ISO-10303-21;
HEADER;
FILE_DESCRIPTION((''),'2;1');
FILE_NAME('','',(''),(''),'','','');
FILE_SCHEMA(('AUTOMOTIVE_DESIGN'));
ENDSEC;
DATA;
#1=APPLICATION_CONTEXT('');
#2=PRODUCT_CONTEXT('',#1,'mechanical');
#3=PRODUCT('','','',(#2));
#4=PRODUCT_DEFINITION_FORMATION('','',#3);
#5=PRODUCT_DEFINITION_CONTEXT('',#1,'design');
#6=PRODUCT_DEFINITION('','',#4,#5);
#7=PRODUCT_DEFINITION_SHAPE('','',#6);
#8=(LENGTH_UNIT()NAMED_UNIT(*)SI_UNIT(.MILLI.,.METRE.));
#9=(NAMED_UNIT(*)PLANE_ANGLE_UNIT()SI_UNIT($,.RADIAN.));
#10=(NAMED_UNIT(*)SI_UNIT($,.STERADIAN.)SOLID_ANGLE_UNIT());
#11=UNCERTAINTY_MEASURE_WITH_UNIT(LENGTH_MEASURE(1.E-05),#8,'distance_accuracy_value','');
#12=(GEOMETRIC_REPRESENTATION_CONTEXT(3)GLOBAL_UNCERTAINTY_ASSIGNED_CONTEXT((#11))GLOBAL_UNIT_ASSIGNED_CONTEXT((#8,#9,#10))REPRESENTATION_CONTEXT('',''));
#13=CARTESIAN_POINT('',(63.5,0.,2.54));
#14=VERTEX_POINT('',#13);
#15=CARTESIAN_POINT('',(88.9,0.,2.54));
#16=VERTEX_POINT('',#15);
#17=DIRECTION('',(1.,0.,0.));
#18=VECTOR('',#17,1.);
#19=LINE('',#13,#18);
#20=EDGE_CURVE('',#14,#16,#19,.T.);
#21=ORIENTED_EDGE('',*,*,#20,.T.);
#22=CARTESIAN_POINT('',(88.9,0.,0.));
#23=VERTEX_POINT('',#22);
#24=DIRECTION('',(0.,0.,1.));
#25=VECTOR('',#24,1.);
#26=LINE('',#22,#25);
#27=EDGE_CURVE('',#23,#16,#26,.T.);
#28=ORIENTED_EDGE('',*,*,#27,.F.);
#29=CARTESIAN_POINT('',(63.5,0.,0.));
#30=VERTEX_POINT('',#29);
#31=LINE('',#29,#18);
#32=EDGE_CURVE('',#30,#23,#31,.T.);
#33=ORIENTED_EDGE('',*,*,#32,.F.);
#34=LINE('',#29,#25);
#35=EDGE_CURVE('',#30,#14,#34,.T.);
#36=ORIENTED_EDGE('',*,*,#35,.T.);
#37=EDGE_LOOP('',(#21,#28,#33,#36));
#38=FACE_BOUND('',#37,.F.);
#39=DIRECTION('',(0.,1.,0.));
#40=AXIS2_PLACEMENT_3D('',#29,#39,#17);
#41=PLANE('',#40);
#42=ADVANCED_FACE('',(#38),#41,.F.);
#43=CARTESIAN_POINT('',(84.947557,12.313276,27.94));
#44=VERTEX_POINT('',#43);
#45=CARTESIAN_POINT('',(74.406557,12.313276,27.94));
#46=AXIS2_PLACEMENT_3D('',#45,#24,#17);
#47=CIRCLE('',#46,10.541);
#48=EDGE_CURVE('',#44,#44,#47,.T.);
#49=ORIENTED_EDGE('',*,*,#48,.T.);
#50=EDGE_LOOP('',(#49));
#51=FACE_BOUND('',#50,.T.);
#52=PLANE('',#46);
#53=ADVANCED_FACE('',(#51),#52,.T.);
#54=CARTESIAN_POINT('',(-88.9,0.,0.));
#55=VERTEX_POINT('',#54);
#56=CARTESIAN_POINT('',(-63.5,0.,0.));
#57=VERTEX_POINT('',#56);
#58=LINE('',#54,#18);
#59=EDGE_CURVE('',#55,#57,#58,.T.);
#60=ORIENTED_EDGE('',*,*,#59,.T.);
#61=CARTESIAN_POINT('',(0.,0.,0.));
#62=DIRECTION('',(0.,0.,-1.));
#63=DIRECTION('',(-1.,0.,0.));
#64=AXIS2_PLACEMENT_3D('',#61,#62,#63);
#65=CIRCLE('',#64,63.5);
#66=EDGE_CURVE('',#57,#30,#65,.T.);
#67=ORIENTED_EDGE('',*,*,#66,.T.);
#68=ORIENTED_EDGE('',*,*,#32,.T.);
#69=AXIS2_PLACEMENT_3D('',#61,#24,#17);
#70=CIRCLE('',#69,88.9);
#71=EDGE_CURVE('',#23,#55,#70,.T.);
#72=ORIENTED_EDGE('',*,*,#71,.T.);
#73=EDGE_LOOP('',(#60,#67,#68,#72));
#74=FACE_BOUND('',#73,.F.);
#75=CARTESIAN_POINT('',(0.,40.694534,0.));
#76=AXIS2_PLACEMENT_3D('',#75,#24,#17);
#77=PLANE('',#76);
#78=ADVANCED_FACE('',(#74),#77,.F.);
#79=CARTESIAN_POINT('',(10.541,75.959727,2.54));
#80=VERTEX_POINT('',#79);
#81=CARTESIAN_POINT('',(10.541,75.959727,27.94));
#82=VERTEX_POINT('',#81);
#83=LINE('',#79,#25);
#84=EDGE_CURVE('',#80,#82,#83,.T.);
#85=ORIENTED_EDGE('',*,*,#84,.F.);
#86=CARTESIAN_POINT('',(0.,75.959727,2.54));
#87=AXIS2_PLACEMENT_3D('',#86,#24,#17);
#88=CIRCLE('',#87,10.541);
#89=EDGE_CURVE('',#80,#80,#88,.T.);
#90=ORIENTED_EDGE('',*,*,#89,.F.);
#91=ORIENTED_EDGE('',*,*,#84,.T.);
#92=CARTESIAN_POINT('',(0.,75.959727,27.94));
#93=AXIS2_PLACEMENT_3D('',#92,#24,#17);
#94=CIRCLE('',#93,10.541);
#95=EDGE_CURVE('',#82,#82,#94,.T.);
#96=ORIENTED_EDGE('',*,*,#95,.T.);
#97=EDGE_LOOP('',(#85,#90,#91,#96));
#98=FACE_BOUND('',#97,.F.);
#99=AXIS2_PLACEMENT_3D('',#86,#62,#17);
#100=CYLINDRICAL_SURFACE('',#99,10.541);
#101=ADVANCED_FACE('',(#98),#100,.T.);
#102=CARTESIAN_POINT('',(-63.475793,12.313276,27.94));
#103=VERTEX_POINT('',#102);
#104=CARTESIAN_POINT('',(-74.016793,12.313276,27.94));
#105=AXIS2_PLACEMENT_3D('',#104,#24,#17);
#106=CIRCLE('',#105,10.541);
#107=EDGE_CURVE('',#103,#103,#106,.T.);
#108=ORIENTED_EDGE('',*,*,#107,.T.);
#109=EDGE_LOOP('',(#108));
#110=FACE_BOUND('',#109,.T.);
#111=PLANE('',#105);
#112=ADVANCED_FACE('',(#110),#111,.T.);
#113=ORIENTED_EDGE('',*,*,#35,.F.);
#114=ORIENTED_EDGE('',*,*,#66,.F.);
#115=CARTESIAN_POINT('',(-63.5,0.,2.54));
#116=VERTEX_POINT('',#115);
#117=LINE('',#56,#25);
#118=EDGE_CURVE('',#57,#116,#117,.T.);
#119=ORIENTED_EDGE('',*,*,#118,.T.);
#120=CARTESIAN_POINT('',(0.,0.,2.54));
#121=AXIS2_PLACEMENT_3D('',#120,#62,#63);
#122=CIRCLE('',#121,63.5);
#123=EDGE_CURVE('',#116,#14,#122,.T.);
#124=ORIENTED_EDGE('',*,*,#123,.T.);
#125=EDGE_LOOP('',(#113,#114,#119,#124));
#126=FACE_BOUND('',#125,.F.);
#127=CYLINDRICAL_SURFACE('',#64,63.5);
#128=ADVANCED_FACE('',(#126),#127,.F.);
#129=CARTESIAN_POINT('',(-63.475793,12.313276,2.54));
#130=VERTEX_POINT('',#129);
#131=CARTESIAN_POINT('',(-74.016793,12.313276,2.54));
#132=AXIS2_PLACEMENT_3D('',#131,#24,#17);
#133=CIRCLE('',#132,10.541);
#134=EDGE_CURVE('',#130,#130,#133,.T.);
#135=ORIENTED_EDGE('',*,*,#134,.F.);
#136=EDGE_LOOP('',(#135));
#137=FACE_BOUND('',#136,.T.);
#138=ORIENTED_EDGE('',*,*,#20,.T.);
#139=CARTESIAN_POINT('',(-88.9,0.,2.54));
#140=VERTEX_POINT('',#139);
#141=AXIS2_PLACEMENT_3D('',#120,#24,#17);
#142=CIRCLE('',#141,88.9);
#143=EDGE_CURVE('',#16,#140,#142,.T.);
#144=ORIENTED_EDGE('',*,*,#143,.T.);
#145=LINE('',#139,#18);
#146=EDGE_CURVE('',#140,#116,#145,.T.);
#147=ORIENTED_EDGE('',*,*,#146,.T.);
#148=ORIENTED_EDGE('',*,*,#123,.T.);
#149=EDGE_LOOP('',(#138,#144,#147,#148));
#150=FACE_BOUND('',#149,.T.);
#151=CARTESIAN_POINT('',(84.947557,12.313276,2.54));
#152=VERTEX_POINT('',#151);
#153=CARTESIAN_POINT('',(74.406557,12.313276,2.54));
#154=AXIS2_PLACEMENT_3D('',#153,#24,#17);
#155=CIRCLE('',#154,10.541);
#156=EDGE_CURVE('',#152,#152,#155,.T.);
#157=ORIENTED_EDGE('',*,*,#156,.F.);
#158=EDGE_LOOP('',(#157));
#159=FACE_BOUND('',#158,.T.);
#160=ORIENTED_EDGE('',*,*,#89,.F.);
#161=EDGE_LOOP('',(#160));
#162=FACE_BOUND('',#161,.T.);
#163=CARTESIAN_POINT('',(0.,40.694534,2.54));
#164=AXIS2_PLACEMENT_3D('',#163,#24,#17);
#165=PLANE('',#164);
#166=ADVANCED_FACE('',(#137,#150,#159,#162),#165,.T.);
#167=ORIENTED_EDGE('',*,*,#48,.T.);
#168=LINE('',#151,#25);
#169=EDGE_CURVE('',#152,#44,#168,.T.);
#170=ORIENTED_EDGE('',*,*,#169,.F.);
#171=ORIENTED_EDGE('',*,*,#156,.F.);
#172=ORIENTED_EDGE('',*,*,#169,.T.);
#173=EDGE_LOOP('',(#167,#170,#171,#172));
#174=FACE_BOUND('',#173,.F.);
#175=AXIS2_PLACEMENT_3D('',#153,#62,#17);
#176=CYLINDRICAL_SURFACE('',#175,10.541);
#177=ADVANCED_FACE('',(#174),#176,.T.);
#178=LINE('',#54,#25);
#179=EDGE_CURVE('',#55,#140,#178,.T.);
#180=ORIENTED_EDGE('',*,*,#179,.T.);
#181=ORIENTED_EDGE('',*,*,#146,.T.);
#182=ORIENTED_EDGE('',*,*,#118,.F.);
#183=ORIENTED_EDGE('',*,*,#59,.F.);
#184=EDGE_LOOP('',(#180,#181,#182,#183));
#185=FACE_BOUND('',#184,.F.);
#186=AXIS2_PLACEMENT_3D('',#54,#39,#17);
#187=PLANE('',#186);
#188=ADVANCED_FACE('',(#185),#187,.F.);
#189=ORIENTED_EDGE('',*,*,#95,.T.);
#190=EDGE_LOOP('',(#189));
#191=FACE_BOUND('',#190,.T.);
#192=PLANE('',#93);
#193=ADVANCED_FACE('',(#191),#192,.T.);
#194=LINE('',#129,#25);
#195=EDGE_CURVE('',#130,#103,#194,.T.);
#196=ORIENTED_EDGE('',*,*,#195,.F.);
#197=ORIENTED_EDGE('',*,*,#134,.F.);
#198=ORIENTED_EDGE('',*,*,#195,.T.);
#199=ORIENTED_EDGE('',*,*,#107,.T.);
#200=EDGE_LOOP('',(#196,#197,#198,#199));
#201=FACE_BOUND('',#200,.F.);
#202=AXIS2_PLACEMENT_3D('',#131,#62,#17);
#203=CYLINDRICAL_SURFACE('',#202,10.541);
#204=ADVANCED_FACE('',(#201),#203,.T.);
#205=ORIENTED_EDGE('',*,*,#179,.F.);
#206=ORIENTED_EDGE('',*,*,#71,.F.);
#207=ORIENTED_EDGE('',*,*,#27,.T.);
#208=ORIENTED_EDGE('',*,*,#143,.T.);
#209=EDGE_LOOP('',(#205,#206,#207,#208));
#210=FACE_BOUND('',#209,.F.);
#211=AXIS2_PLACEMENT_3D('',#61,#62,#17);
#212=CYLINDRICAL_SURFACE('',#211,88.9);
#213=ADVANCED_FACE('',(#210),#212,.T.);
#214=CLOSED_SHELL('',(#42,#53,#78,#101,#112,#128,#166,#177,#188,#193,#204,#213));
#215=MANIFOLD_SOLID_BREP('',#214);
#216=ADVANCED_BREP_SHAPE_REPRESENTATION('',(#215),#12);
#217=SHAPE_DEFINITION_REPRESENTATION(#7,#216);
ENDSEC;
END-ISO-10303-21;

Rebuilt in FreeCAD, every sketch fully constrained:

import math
import FreeCAD as App
import Part
import Sketcher

V = App.Vector
Q = App.Units.Quantity

doc = App.newDocument("Part")
body = doc.addObject("PartDesign::Body", "Body")

# Sketch on XY plane
sketch1 = body.newObject("Sketcher::SketchObject", "Sketch")
sketch1.AttachmentSupport = (doc.getObject("XY_Plane"), [""])
sketch1.MapMode = "FlatFace"
sketch1.addGeometry([
    Part.LineSegment(V(64, 0, 0), V(89, 0, 0)),
    Part.ArcOfCircle(Part.Circle(V(0, 0, 0), V(0, 0, 1), 89), math.radians(0), math.radians(180)),
    Part.LineSegment(V(-89, 0, 0), V(-64, 0, 0)),
    Part.ArcOfCircle(Part.Circle(V(0, 0, 0), V(0, 0, 1), 64), math.radians(0), math.radians(180)),
], False)
sketch1.addConstraint([
    Sketcher.Constraint("Coincident", 0, 2, 1, 1),
    Sketcher.Constraint("Coincident", 1, 2, 2, 1),
    Sketcher.Constraint("Coincident", 2, 2, 3, 2),
    Sketcher.Constraint("Coincident", 3, 1, 0, 1),
    Sketcher.Constraint("Horizontal", 0),
    Sketcher.Constraint("Horizontal", 2),
    Sketcher.Constraint("Coincident", 1, 3, -1, 1),
    Sketcher.Constraint("Coincident", 3, 3, -1, 1),
    Sketcher.Constraint("PointOnObject", 0, 2, -1),
    Sketcher.Constraint("PointOnObject", 1, 2, -1),
    Sketcher.Constraint("Radius", 1, Q("3.5 in")),
    Sketcher.Constraint("Radius", 3, Q("2.5 in")),
])
pad1 = body.newObject("PartDesign::Pad", "Pad")
pad1.Profile = sketch1
pad1.Length = Q("0.1 in")

# Sketch on XY plane
sketch2 = body.newObject("Sketcher::SketchObject", "Sketch001")
sketch2.AttachmentSupport = (doc.getObject("XY_Plane"), [""])
sketch2.MapMode = "FlatFace"
sketch2.AttachmentOffset = App.Placement(V(0, 0, 0.1 * 25.4), App.Rotation())
sketch2.addGeometry([
    Part.Circle(V(0, 76, 0), V(0, 0, 1), 11),
    Part.Circle(V(-74, 12, 0), V(0, 0, 1), 11),
    Part.Circle(V(74, 12, 0), V(0, 0, 1), 11),
], False)
sketch2.addConstraint([
    Sketcher.Constraint("Equal", 0, 1),
    Sketcher.Constraint("Equal", 1, 2),
    Sketcher.Constraint("PointOnObject", 0, 3, -2),
    Sketcher.Constraint("Horizontal", 1, 3, 2, 3),
    Sketcher.Constraint("Diameter", 0, Q("0.83 in")),
    Sketcher.Constraint("DistanceY", 1, 3, 0, 3, Q("63.646451 mm")),
    Sketcher.Constraint("DistanceX", 1, 3, 2, 3, Q("148.42335 mm")),
    Sketcher.Constraint("DistanceY", -1, 1, 0, 3, Q("75.959727 mm")),
    Sketcher.Constraint("DistanceX", 1, 3, -1, 1, Q("74.016793 mm")),
])
pad2 = body.newObject("PartDesign::Pad", "Pad001")
pad2.Profile = sketch2
pad2.Length = Q("1 in")

doc.recompute()
